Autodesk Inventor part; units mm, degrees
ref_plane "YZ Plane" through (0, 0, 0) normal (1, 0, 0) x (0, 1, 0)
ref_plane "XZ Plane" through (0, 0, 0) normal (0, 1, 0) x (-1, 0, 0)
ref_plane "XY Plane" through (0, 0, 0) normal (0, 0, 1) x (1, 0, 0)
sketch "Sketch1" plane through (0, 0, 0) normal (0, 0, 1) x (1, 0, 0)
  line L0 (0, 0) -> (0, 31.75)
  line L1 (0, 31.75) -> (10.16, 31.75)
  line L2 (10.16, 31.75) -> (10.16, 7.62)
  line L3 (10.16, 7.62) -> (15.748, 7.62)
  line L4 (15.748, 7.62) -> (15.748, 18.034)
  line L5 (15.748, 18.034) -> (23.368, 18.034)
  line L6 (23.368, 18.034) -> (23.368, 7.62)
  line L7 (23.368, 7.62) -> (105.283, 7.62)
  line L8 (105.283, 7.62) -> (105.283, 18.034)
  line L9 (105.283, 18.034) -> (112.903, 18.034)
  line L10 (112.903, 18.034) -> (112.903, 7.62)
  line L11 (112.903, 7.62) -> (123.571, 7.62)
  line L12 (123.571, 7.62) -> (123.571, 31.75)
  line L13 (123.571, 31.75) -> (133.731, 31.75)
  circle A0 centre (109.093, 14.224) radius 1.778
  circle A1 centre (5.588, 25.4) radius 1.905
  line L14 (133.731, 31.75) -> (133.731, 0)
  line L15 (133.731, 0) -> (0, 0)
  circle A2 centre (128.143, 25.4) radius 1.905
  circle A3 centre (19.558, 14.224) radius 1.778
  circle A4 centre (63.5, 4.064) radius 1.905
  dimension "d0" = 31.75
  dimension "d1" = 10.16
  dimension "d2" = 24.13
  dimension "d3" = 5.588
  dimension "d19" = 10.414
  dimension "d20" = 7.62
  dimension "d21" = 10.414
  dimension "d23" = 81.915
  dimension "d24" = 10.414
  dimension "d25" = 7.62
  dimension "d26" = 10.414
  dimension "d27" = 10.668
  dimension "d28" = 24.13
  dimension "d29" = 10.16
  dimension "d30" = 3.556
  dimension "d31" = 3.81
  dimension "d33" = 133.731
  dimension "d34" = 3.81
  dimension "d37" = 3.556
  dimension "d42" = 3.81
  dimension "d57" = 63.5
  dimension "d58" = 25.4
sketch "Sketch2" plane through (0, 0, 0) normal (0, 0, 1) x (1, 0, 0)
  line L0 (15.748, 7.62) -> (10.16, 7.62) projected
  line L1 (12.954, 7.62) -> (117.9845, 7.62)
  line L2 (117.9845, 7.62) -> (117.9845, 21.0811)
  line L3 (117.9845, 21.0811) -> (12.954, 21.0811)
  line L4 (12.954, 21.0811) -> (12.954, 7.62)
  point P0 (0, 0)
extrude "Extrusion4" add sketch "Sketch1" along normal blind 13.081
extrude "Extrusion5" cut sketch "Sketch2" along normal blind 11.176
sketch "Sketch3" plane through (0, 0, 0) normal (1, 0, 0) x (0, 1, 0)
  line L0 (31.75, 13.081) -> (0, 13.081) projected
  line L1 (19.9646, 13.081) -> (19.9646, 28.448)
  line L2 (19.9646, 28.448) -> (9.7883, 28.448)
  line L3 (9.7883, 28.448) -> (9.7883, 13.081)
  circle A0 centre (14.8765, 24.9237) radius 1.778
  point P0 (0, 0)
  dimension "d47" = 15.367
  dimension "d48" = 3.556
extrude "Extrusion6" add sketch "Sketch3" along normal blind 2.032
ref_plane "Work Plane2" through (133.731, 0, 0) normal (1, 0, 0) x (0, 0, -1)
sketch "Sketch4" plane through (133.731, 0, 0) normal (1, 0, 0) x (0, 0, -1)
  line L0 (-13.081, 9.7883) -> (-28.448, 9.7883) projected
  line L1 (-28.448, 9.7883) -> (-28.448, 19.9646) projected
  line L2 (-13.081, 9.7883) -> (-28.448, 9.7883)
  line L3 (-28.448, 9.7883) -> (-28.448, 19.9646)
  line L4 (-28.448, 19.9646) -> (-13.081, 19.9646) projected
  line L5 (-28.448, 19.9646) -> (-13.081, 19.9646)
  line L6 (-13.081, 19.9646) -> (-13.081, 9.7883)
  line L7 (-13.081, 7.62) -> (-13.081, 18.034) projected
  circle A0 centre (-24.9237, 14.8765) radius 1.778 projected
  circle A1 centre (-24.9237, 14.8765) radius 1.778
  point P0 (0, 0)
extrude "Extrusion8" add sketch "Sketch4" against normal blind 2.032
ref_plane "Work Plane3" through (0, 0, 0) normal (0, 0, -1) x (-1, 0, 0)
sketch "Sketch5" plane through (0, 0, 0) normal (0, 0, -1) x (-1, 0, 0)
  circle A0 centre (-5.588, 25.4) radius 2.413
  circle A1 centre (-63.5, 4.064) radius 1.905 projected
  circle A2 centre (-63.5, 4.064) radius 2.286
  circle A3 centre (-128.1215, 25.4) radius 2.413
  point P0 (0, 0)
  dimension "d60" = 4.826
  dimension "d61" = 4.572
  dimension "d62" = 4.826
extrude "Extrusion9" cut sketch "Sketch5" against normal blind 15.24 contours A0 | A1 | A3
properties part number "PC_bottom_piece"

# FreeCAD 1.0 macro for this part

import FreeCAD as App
import Part
import Sketcher
from FreeCAD import Vector
Q = App.Units.Quantity

doc = App.newDocument("Part")
body = doc.addObject("PartDesign::Body", "Body")

# Sketch on XY plane
sketch1 = body.newObject("Sketcher::SketchObject", "Sketch")
sketch1.AttachmentSupport = (doc.getObject("XY_Plane"), [""])
sketch1.MapMode = "FlatFace"
sketch1.addGeometry([
    Part.LineSegment(Vector(0, 31.8, 0), Vector(0, 0, 0)),  # 0
    Part.LineSegment(Vector(0, 0, 0), Vector(133.7, 0, 0)),  # 1
    Part.LineSegment(Vector(133.7, 0, 0), Vector(133.7, 31.8, 0)),  # 2
    Part.LineSegment(Vector(133.7, 31.8, 0), Vector(123.6, 31.8, 0)),  # 3
    Part.LineSegment(Vector(123.6, 31.8, 0), Vector(123.6, 7.6, 0)),  # 4
    Part.LineSegment(Vector(123.6, 7.6, 0), Vector(112.9, 7.6, 0)),  # 5
    Part.LineSegment(Vector(112.9, 7.6, 0), Vector(112.9, 18, 0)),  # 6
    Part.LineSegment(Vector(112.9, 18, 0), Vector(105.3, 18, 0)),  # 7
    Part.LineSegment(Vector(105.3, 18, 0), Vector(105.3, 7.6, 0)),  # 8
    Part.LineSegment(Vector(105.3, 7.6, 0), Vector(23.4, 7.6, 0)),  # 9
    Part.LineSegment(Vector(23.4, 7.6, 0), Vector(23.4, 18, 0)),  # 10
    Part.LineSegment(Vector(23.4, 18, 0), Vector(15.7, 18, 0)),  # 11
    Part.LineSegment(Vector(15.7, 18, 0), Vector(15.7, 7.6, 0)),  # 12
    Part.LineSegment(Vector(15.7, 7.6, 0), Vector(10.2, 7.6, 0)),  # 13
    Part.LineSegment(Vector(10.2, 7.6, 0), Vector(10.2, 31.8, 0)),  # 14
    Part.LineSegment(Vector(10.2, 31.8, 0), Vector(0, 31.8, 0)),  # 15
    Part.Circle(Vector(63.5, 4.1, 0), Vector(0, 0, 1), 1.9),  # 16
    Part.Circle(Vector(19.6, 14.2, 0), Vector(0, 0, 1), 1.8),  # 17
    Part.Circle(Vector(109.1, 14.2, 0), Vector(0, 0, 1), 1.8),  # 18
    Part.Circle(Vector(5.6, 25.4, 0), Vector(0, 0, 1), 1.9),  # 19
    Part.Circle(Vector(128.1, 25.4, 0), Vector(0, 0, 1), 1.9),  # 20
], False)
sketch1.addConstraint([
    Sketcher.Constraint("Coincident", 0, 2, 1, 1),
    Sketcher.Constraint("Coincident", 1, 2, 2, 1),
    Sketcher.Constraint("Coincident", 2, 2, 3, 1),
    Sketcher.Constraint("Coincident", 3, 2, 4, 1),
    Sketcher.Constraint("Coincident", 4, 2, 5, 1),
    Sketcher.Constraint("Coincident", 5, 2, 6, 1),
    Sketcher.Constraint("Coincident", 6, 2, 7, 1),
    Sketcher.Constraint("Coincident", 7, 2, 8, 1),
    Sketcher.Constraint("Coincident", 8, 2, 9, 1),
    Sketcher.Constraint("Coincident", 9, 2, 10, 1),
    Sketcher.Constraint("Coincident", 10, 2, 11, 1),
    Sketcher.Constraint("Coincident", 11, 2, 12, 1),
    Sketcher.Constraint("Coincident", 12, 2, 13, 1),
    Sketcher.Constraint("Coincident", 13, 2, 14, 1),
    Sketcher.Constraint("Coincident", 14, 2, 15, 1),
    Sketcher.Constraint("Coincident", 15, 2, 0, 1),
    Sketcher.Constraint("Vertical", 0),
    Sketcher.Constraint("Horizontal", 1),
    Sketcher.Constraint("Vertical", 2),
    Sketcher.Constraint("Horizontal", 3),
    Sketcher.Constraint("Vertical", 4),
    Sketcher.Constraint("Horizontal", 5),
    Sketcher.Constraint("Vertical", 6),
    Sketcher.Constraint("Horizontal", 7),
    Sketcher.Constraint("Vertical", 8),
    Sketcher.Constraint("Horizontal", 9),
    Sketcher.Constraint("Vertical", 10),
    Sketcher.Constraint("Horizontal", 11),
    Sketcher.Constraint("Vertical", 12),
    Sketcher.Constraint("Horizontal", 13),
    Sketcher.Constraint("Vertical", 14),
    Sketcher.Constraint("Horizontal", 15),
    Sketcher.Constraint("Coincident", 0, 2, -1, 1),
    Sketcher.Constraint("Equal", 17, 18),
    Sketcher.Constraint("Equal", 16, 19),
    Sketcher.Constraint("Equal", 19, 20),
    Sketcher.Constraint("Horizontal", 17, 3, 18, 3),
    Sketcher.Constraint("Horizontal", 19, 3, 20, 3),
    Sketcher.Constraint("Horizontal", 5, 2, 8, 2),
    Sketcher.Constraint("Horizontal", 7, 2, 10, 2),
    Sketcher.Constraint("Horizontal", 9, 2, 12, 2),
    Sketcher.Constraint("Horizontal", 3, 2, 14, 2),
    Sketcher.Constraint("Equal", 7, 11),
    Sketcher.Constraint("Equal", 3, 15),
    Sketcher.Constraint("Diameter", 16, Q("0.15 in")),
    Sketcher.Constraint("Diameter", 17, Q("0.14 in")),
    Sketcher.Constraint("DistanceX", 3, 2, 3, 1, Q("0.4 in")),
    Sketcher.Constraint("DistanceX", 7, 2, 7, 1, Q("0.3 in")),
    Sketcher.Constraint("DistanceY", -1, 1, 19, 3, Q("1 in")),
    Sketcher.Constraint("DistanceX", 5, 2, 5, 1, Q("0.42 in")),
    Sketcher.Constraint("DistanceX", 13, 2, 13, 1, Q("0.22 in")),
    Sketcher.Constraint("DistanceY", 0, 2, 0, 1, Q("1.25 in")),
    Sketcher.Constraint("DistanceY", 4, 2, 4, 1, Q("0.95 in")),
    Sketcher.Constraint("DistanceY", 6, 1, 6, 2, Q("0.41 in")),
    Sketcher.Constraint("DistanceX", -1, 1, 16, 3, Q("2.5 in")),
    Sketcher.Constraint("DistanceY", 16, 3, 17, 3, Q("0.4 in")),
    Sketcher.Constraint("DistanceX", 19, 3, 11, 2, Q("0.4 in")),
    Sketcher.Constraint("DistanceX", 1, 1, 1, 2, Q("5.265 in")),
    Sketcher.Constraint("DistanceX", 20, 3, 1, 2, Q("0.22 in")),
    Sketcher.Constraint("DistanceX", 18, 3, 5, 2, Q("0.15 in")),
    Sketcher.Constraint("DistanceY", 18, 3, 6, 2, Q("0.15 in")),
    Sketcher.Constraint("DistanceX", 17, 3, 9, 2, Q("0.15 in")),
])
pad1 = body.newObject("PartDesign::Pad", "Pad")
pad1.Profile = sketch1
pad1.Length = Q("0.515 in")

# Sketch on XY plane
sketch2 = body.newObject("Sketcher::SketchObject", "Sketch001")
sketch2.AttachmentSupport = (doc.getObject("XY_Plane"), [""])
sketch2.MapMode = "FlatFace"
sketch2.addGeometry([
    Part.LineSegment(Vector(13, 8, 0), Vector(118, 8, 0)),
    Part.LineSegment(Vector(118, 8, 0), Vector(118, 21, 0)),
    Part.LineSegment(Vector(118, 21, 0), Vector(13, 21, 0)),
    Part.LineSegment(Vector(13, 21, 0), Vector(13, 8, 0)),
], False)
sketch2.addConstraint([
    Sketcher.Constraint("Coincident", 0, 2, 1, 1),
    Sketcher.Constraint("Coincident", 1, 2, 2, 1),
    Sketcher.Constraint("Coincident", 2, 2, 3, 1),
    Sketcher.Constraint("Coincident", 3, 2, 0, 1),
    Sketcher.Constraint("Horizontal", 0),
    Sketcher.Constraint("Vertical", 1),
    Sketcher.Constraint("Horizontal", 2),
    Sketcher.Constraint("Vertical", 3),
    Sketcher.Constraint("DistanceY", -1, 1, 0, 2, Q("0.3 in")),
    Sketcher.Constraint("DistanceX", -1, 1, 2, 2, Q("0.51 in")),
    Sketcher.Constraint("DistanceX", 0, 1, 0, 2, 105.0305),
    Sketcher.Constraint("DistanceY", 1, 1, 1, 2, 13.461),
])
pocket1 = body.newObject("PartDesign::Pocket", "Pocket")
pocket1.Profile = sketch2
pocket1.Length = Q("0.44 in")
pocket1.Reversed = True

# Sketch on YZ plane
sketch3 = body.newObject("Sketcher::SketchObject", "Sketch002")
sketch3.AttachmentSupport = (doc.getObject("YZ_Plane"), [""])
sketch3.MapMode = "FlatFace"
sketch3.addGeometry([
    Part.LineSegment(Vector(9.8, 13.1, 0), Vector(20, 13.1, 0)),  # 0
    Part.LineSegment(Vector(20, 13.1, 0), Vector(20, 28.4, 0)),  # 1
    Part.LineSegment(Vector(20, 28.4, 0), Vector(9.8, 28.4, 0)),  # 2
    Part.LineSegment(Vector(9.8, 28.4, 0), Vector(9.8, 13.1, 0)),  # 3
    Part.Circle(Vector(14.9, 24.9, 0), Vector(0, 0, 1), 1.8),  # 4
], False)
sketch3.addConstraint([
    Sketcher.Constraint("Coincident", 0, 2, 1, 1),
    Sketcher.Constraint("Coincident", 1, 2, 2, 1),
    Sketcher.Constraint("Coincident", 2, 2, 3, 1),
    Sketcher.Constraint("Coincident", 3, 2, 0, 1),
    Sketcher.Constraint("Horizontal", 0),
    Sketcher.Constraint("Vertical", 1),
    Sketcher.Constraint("Horizontal", 2),
    Sketcher.Constraint("Vertical", 3),
    Sketcher.Constraint("Diameter", 4, Q("0.14 in")),
    Sketcher.Constraint("DistanceY", 1, 1, 1, 2, Q("0.605 in")),
    Sketcher.Constraint("DistanceY", -1, 1, 1, 2, Q("1.12 in")),
    Sketcher.Constraint("DistanceX", -1, 1, 0, 2, Q("0.786 in")),
    Sketcher.Constraint("DistanceX", 0, 1, 0, 2, 10.1763),
    Sketcher.Constraint("DistanceX", -1, 1, 4, 3, Q("0.5857 in")),
    Sketcher.Constraint("DistanceY", -1, 1, 4, 3, 24.9237),
])
pad2 = body.newObject("PartDesign::Pad", "Pad001")
pad2.Profile = sketch3
pad2.Length = Q("0.08 in")

# Sketch on YZ plane
sketch4 = body.newObject("Sketcher::SketchObject", "Sketch003")
sketch4.AttachmentSupport = (doc.getObject("YZ_Plane"), [""])
sketch4.MapMode = "FlatFace"
sketch4.AttachmentOffset = App.Placement(Vector(0, 0, 5.265 * 25.4), App.Rotation())
sketch4.addGeometry([
    Part.LineSegment(Vector(9.8, 28.4, 0), Vector(9.8, 13.1, 0)),  # 0
    Part.LineSegment(Vector(9.8, 13.1, 0), Vector(20, 13.1, 0)),  # 1
    Part.LineSegment(Vector(20, 13.1, 0), Vector(20, 28.4, 0)),  # 2
    Part.LineSegment(Vector(20, 28.4, 0), Vector(9.8, 28.4, 0)),  # 3
    Part.Circle(Vector(14.9, 24.9, 0), Vector(0, 0, 1), 1.8),  # 4
], False)
sketch4.addConstraint([
    Sketcher.Constraint("Coincident", 0, 2, 1, 1),
    Sketcher.Constraint("Coincident", 1, 2, 2, 1),
    Sketcher.Constraint("Coincident", 2, 2, 3, 1),
    Sketcher.Constraint("Coincident", 3, 2, 0, 1),
    Sketcher.Constraint("Vertical", 0),
    Sketcher.Constraint("Horizontal", 1),
    Sketcher.Constraint("Vertical", 2),
    Sketcher.Constraint("Horizontal", 3),
    Sketcher.Constraint("Diameter", 4, Q("0.14 in")),
    Sketcher.Constraint("DistanceY", 0, 2, 0, 1, Q("0.605 in")),
    Sketcher.Constraint("DistanceY", -1, 1, 2, 2, Q("1.12 in")),
    Sketcher.Constraint("DistanceX", -1, 1, 1, 2, Q("0.786 in")),
    Sketcher.Constraint("DistanceX", 1, 1, 1, 2, 10.1763),
    Sketcher.Constraint("DistanceX", -1, 1, 4, 3, Q("0.5857 in")),
    Sketcher.Constraint("DistanceY", -1, 1, 4, 3, 24.9237),
])
pad3 = body.newObject("PartDesign::Pad", "Pad002")
pad3.Profile = sketch4
pad3.Length = Q("0.08 in")
pad3.Reversed = True

# Sketch on XY plane
sketch5 = body.newObject("Sketcher::SketchObject", "Sketch004")
sketch5.AttachmentSupport = (doc.getObject("XY_Plane"), [""])
sketch5.MapMode = "FlatFace"
sketch5.addGeometry([
    Part.Circle(Vector(5.6, 25.4, 0), Vector(0, 0, 1), 2.4),
    Part.Circle(Vector(63.5, 4.1, 0), Vector(0, 0, 1), 1.9),
    Part.Circle(Vector(128.1, 25.4, 0), Vector(0, 0, 1), 2.4),
], False)
sketch5.addConstraint([
    Sketcher.Constraint("Equal", 0, 2),
    Sketcher.Constraint("Horizontal", 0, 3, 2, 3),
    Sketcher.Constraint("Diameter", 0, Q("0.19 in")),
    Sketcher.Constraint("Diameter", 1, Q("0.15 in")),
    Sketcher.Constraint("DistanceY", -1, 1, 0, 3, Q("1 in")),
    Sketcher.Constraint("DistanceX", -1, 1, 1, 3, Q("2.5 in")),
    Sketcher.Constraint("DistanceX", -1, 1, 0, 3, Q("0.22 in")),
    Sketcher.Constraint("DistanceY", -1, 1, 1, 3, Q("0.16 in")),
    Sketcher.Constraint("DistanceX", -1, 1, 2, 3, 128.1215),
])
pocket2 = body.newObject("PartDesign::Pocket", "Pocket001")
pocket2.Profile = sketch5
pocket2.Length = Q("0.6 in")
pocket2.Reversed = True

doc.recompute()
